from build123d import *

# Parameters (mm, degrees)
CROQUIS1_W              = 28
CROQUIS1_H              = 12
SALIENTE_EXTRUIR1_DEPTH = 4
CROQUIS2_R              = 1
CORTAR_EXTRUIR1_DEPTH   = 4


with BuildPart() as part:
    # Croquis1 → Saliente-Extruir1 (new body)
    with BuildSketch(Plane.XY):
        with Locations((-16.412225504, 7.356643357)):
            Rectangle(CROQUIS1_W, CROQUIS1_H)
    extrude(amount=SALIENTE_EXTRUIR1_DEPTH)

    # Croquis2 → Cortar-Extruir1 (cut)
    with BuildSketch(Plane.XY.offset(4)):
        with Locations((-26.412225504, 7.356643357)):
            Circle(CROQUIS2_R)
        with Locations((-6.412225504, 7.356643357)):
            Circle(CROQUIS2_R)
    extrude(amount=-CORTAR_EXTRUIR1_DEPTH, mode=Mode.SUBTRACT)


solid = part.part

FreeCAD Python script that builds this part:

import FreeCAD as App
import Part
import Sketcher
from FreeCAD import Vector
Q = App.Units.Quantity

doc = App.newDocument("Part")
body = doc.addObject("PartDesign::Body", "Body")

sketch1 = body.newObject("Sketcher::SketchObject", "Sketch")
sketch1.AttachmentSupport = (doc.getObject("XY_Plane"), [""])
sketch1.MapMode = "FlatFace"
sketch1.addGeometry([
    Part.LineSegment(Vector(-30, 13, 0), Vector(-30, 1, 0)),
    Part.LineSegment(Vector(-30, 1, 0), Vector(-2, 1, 0)),
    Part.LineSegment(Vector(-2, 1, 0), Vector(-2, 13, 0)),
    Part.LineSegment(Vector(-2, 13, 0), Vector(-30, 13, 0)),
], False)
sketch1.addConstraint([
    Sketcher.Constraint("Coincident", 0, 2, 1, 1),
    Sketcher.Constraint("Coincident", 1, 2, 2, 1),
    Sketcher.Constraint("Coincident", 2, 2, 3, 1),
    Sketcher.Constraint("Coincident", 3, 2, 0, 1),
    Sketcher.Constraint("Vertical", 0),
    Sketcher.Constraint("Horizontal", 1),
    Sketcher.Constraint("Vertical", 2),
    Sketcher.Constraint("Horizontal", 3),
    Sketcher.Constraint("DistanceX", 1, 1, 1, 2, Q("28 mm")),
    Sketcher.Constraint("DistanceY", 0, 2, 0, 1, Q("12 mm")),
    Sketcher.Constraint("DistanceX", 0, 2, -1, 1, Q("30.412226 mm")),
    Sketcher.Constraint("DistanceY", -1, 1, 0, 2, Q("1.356643 mm")),
])
pad1 = body.newObject("PartDesign::Pad", "Pad")
pad1.Profile = sketch1
pad1.Length = 4

sketch2 = body.newObject("Sketcher::SketchObject", "Sketch001")
sketch2.AttachmentSupport = (doc.getObject("XY_Plane"), [""])
sketch2.MapMode = "FlatFace"
sketch2.AttachmentOffset = App.Placement(Vector(0, 0, 4), App.Rotation())
sketch2.addGeometry([
    Part.Circle(Vector(-26.4, 7.4, 0), Vector(0, 0, 1), 1),
    Part.Circle(Vector(-6.4, 7.4, 0), Vector(0, 0, 1), 1),
], False)
sketch2.addConstraint([
    Sketcher.Constraint("Equal", 0, 1),
    Sketcher.Constraint("Horizontal", 0, 3, 1, 3),
    Sketcher.Constraint("Diameter", 0, Q("2 mm")),
    Sketcher.Constraint("DistanceX", 0, 3, 1, 3, Q("20 mm")),
    Sketcher.Constraint("DistanceX", 0, 3, -1, 1, Q("26.412226 mm")),
    Sketcher.Constraint("DistanceY", -1, 1, 0, 3, Q("7.356643 mm")),
])
pocket1 = body.newObject("PartDesign::Pocket", "Pocket")
pocket1.Profile = sketch2
pocket1.Length = 4

doc.recompute()
